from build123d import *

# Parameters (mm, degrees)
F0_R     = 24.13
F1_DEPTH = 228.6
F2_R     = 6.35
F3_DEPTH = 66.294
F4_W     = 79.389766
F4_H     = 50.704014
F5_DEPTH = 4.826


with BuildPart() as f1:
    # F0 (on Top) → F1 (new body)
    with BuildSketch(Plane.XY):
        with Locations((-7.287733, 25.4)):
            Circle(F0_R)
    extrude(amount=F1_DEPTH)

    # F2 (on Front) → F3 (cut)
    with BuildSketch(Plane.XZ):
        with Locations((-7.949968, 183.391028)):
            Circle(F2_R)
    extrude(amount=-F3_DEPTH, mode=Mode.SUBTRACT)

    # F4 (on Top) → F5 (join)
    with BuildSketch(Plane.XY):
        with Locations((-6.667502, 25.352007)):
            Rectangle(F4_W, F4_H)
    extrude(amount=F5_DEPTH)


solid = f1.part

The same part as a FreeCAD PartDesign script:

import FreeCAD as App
import Part
import Sketcher

V = App.Vector
Q = App.Units.Quantity

doc = App.newDocument("Part")
body = doc.addObject("PartDesign::Body", "Body")

sketch1 = doc.addObject("Sketcher::SketchObject", "Sketch")
body.addObject(sketch1)
sketch1.AttachmentSupport = (doc.XY_Plane, [""])
sketch1.MapMode = "FlatFace"
sketch1.addGeometry(Part.Circle(V(-7, 25, 0), V(0, 0, 1), 24), False)
sketch1.addConstraint([
    Sketcher.Constraint("Diameter", 0, Q("1.9 in")),
    Sketcher.Constraint("DistanceY", -1, 1, 0, 3, Q("1 in")),
    Sketcher.Constraint("DistanceX", 0, 3, -1, 1, 7.287733),
])
pad1 = doc.addObject("PartDesign::Pad", "Pad")
body.addObject(pad1)
pad1.Profile = sketch1
pad1.Length = Q("9 in")

sketch2 = doc.addObject("Sketcher::SketchObject", "Sketch001")
body.addObject(sketch2)
sketch2.AttachmentSupport = (doc.XZ_Plane, [""])
sketch2.MapMode = "FlatFace"
sketch2.addGeometry(Part.Circle(V(-8, 183, 0), V(0, 0, 1), 6), False)
sketch2.addConstraint([
    Sketcher.Constraint("Diameter", 0, Q("0.5 in")),
    Sketcher.Constraint("DistanceY", -1, 1, 0, 3, 183.391028),
    Sketcher.Constraint("DistanceX", 0, 3, -1, 1, 7.949968),
])
pocket1 = doc.addObject("PartDesign::Pocket", "Pocket")
body.addObject(pocket1)
pocket1.Profile = sketch2
pocket1.Length = Q("2.61 in")

sketch3 = doc.addObject("Sketcher::SketchObject", "Sketch002")
body.addObject(sketch3)
sketch3.AttachmentSupport = (doc.XY_Plane, [""])
sketch3.MapMode = "FlatFace"
sketch3.addGeometry([
    Part.LineSegment(V(-46, 51, 0), V(-46, 0, 0)),
    Part.LineSegment(V(-46, 0, 0), V(33, 0, 0)),
    Part.LineSegment(V(33, 0, 0), V(33, 51, 0)),
    Part.LineSegment(V(33, 51, 0), V(-46, 51, 0)),
], False)
sketch3.addConstraint([
    Sketcher.Constraint("Coincident", 0, 2, 1, 1),
    Sketcher.Constraint("Coincident", 1, 2, 2, 1),
    Sketcher.Constraint("Coincident", 2, 2, 3, 1),
    Sketcher.Constraint("Coincident", 3, 2, 0, 1),
    Sketcher.Constraint("Vertical", 0),
    Sketcher.Constraint("Horizontal", 1),
    Sketcher.Constraint("Vertical", 2),
    Sketcher.Constraint("Horizontal", 3),
    Sketcher.Constraint("PointOnObject", 0, 2, -1),
    Sketcher.Constraint("DistanceX", 1, 1, 1, 2, 79.389766),
    Sketcher.Constraint("DistanceY", 0, 2, 0, 1, 50.704014),
    Sketcher.Constraint("DistanceX", -1, 1, 1, 2, 33.027381),
])
pad2 = doc.addObject("PartDesign::Pad", "Pad001")
body.addObject(pad2)
pad2.Profile = sketch3
pad2.Length = Q("0.19 in")

doc.recompute()
